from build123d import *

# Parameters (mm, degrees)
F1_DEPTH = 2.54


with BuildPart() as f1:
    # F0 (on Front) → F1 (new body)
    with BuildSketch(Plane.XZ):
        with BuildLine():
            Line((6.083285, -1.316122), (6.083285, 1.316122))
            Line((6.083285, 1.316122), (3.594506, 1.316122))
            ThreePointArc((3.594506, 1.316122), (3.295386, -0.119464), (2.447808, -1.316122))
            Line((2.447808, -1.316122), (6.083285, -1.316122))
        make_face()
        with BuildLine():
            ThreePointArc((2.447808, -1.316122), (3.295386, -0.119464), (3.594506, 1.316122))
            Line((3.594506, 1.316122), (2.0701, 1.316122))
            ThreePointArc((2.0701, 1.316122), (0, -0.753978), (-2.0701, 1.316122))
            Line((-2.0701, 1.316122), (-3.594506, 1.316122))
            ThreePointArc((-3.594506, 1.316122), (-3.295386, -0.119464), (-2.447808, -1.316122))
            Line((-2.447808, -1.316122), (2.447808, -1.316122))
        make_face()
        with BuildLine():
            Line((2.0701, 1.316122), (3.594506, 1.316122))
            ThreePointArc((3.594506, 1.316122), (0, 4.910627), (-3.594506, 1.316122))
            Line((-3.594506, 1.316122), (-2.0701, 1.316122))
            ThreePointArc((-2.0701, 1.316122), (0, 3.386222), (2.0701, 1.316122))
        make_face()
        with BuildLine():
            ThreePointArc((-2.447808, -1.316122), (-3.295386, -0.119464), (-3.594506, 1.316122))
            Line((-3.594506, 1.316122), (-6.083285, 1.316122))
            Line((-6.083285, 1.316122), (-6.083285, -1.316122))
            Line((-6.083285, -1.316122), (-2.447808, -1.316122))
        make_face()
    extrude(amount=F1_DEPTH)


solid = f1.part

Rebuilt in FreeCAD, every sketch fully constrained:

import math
import FreeCAD as App
import Part
import Sketcher
from FreeCAD import Vector
Q = App.Units.Quantity

doc = App.newDocument("Part")
body = doc.addObject("PartDesign::Body", "Body")

# Sketch on XZ plane
sketch1 = body.newObject("Sketcher::SketchObject", "Sketch")
sketch1.AttachmentSupport = (doc.getObject("XZ_Plane"), [""])
sketch1.MapMode = "FlatFace"
sketch1.addGeometry([
    Part.LineSegment(Vector(6.1, -1.3, 0), Vector(6.1, 1.3, 0)),  # 0
    Part.LineSegment(Vector(6.1, 1.3, 0), Vector(3.6, 1.3, 0)),  # 1
    Part.ArcOfCircle(Part.Circle(Vector(0, 1.3, 0), Vector(0, 0, 1), 3.6), math.radians(0), math.radians(180)),  # 2
    Part.LineSegment(Vector(-3.6, 1.3, 0), Vector(-6.1, 1.3, 0)),  # 3
    Part.LineSegment(Vector(-6.1, 1.3, 0), Vector(-6.1, -1.3, 0)),  # 4
    Part.LineSegment(Vector(-6.1, -1.3, 0), Vector(6.1, -1.3, 0)),  # 5
    Part.Circle(Vector(0, 1.3, 0), Vector(0, 0, 1), 2.1),  # 6
], False)
sketch1.addConstraint([
    Sketcher.Constraint("Coincident", 0, 2, 1, 1),
    Sketcher.Constraint("Coincident", 1, 2, 2, 1),
    Sketcher.Constraint("Coincident", 2, 2, 3, 1),
    Sketcher.Constraint("Coincident", 3, 2, 4, 1),
    Sketcher.Constraint("Coincident", 4, 2, 5, 1),
    Sketcher.Constraint("Coincident", 5, 2, 0, 1),
    Sketcher.Constraint("Vertical", 0),
    Sketcher.Constraint("Horizontal", 1),
    Sketcher.Constraint("Horizontal", 3),
    Sketcher.Constraint("Vertical", 4),
    Sketcher.Constraint("Horizontal", 5),
    Sketcher.Constraint("Coincident", 6, 3, 2, 3),
    Sketcher.Constraint("Symmetric", 0, 2, 4, 2, -1, 1),
    Sketcher.Constraint("Symmetric", 1, 2, 2, 2, -2),
    Sketcher.Constraint("Horizontal", 6, 3, 0, 2),
    Sketcher.Constraint("Diameter", 6, Q("0.163 in")),
    Sketcher.Constraint("Radius", 2, 3.594506),
    Sketcher.Constraint("DistanceX", 1, 2, 1, 1, 2.488779),
    Sketcher.Constraint("DistanceY", 0, 1, 0, 2, 2.632244),
])
pad1 = body.newObject("PartDesign::Pad", "Pad")
pad1.Profile = sketch1
pad1.Length = Q("0.1 in")

doc.recompute()
